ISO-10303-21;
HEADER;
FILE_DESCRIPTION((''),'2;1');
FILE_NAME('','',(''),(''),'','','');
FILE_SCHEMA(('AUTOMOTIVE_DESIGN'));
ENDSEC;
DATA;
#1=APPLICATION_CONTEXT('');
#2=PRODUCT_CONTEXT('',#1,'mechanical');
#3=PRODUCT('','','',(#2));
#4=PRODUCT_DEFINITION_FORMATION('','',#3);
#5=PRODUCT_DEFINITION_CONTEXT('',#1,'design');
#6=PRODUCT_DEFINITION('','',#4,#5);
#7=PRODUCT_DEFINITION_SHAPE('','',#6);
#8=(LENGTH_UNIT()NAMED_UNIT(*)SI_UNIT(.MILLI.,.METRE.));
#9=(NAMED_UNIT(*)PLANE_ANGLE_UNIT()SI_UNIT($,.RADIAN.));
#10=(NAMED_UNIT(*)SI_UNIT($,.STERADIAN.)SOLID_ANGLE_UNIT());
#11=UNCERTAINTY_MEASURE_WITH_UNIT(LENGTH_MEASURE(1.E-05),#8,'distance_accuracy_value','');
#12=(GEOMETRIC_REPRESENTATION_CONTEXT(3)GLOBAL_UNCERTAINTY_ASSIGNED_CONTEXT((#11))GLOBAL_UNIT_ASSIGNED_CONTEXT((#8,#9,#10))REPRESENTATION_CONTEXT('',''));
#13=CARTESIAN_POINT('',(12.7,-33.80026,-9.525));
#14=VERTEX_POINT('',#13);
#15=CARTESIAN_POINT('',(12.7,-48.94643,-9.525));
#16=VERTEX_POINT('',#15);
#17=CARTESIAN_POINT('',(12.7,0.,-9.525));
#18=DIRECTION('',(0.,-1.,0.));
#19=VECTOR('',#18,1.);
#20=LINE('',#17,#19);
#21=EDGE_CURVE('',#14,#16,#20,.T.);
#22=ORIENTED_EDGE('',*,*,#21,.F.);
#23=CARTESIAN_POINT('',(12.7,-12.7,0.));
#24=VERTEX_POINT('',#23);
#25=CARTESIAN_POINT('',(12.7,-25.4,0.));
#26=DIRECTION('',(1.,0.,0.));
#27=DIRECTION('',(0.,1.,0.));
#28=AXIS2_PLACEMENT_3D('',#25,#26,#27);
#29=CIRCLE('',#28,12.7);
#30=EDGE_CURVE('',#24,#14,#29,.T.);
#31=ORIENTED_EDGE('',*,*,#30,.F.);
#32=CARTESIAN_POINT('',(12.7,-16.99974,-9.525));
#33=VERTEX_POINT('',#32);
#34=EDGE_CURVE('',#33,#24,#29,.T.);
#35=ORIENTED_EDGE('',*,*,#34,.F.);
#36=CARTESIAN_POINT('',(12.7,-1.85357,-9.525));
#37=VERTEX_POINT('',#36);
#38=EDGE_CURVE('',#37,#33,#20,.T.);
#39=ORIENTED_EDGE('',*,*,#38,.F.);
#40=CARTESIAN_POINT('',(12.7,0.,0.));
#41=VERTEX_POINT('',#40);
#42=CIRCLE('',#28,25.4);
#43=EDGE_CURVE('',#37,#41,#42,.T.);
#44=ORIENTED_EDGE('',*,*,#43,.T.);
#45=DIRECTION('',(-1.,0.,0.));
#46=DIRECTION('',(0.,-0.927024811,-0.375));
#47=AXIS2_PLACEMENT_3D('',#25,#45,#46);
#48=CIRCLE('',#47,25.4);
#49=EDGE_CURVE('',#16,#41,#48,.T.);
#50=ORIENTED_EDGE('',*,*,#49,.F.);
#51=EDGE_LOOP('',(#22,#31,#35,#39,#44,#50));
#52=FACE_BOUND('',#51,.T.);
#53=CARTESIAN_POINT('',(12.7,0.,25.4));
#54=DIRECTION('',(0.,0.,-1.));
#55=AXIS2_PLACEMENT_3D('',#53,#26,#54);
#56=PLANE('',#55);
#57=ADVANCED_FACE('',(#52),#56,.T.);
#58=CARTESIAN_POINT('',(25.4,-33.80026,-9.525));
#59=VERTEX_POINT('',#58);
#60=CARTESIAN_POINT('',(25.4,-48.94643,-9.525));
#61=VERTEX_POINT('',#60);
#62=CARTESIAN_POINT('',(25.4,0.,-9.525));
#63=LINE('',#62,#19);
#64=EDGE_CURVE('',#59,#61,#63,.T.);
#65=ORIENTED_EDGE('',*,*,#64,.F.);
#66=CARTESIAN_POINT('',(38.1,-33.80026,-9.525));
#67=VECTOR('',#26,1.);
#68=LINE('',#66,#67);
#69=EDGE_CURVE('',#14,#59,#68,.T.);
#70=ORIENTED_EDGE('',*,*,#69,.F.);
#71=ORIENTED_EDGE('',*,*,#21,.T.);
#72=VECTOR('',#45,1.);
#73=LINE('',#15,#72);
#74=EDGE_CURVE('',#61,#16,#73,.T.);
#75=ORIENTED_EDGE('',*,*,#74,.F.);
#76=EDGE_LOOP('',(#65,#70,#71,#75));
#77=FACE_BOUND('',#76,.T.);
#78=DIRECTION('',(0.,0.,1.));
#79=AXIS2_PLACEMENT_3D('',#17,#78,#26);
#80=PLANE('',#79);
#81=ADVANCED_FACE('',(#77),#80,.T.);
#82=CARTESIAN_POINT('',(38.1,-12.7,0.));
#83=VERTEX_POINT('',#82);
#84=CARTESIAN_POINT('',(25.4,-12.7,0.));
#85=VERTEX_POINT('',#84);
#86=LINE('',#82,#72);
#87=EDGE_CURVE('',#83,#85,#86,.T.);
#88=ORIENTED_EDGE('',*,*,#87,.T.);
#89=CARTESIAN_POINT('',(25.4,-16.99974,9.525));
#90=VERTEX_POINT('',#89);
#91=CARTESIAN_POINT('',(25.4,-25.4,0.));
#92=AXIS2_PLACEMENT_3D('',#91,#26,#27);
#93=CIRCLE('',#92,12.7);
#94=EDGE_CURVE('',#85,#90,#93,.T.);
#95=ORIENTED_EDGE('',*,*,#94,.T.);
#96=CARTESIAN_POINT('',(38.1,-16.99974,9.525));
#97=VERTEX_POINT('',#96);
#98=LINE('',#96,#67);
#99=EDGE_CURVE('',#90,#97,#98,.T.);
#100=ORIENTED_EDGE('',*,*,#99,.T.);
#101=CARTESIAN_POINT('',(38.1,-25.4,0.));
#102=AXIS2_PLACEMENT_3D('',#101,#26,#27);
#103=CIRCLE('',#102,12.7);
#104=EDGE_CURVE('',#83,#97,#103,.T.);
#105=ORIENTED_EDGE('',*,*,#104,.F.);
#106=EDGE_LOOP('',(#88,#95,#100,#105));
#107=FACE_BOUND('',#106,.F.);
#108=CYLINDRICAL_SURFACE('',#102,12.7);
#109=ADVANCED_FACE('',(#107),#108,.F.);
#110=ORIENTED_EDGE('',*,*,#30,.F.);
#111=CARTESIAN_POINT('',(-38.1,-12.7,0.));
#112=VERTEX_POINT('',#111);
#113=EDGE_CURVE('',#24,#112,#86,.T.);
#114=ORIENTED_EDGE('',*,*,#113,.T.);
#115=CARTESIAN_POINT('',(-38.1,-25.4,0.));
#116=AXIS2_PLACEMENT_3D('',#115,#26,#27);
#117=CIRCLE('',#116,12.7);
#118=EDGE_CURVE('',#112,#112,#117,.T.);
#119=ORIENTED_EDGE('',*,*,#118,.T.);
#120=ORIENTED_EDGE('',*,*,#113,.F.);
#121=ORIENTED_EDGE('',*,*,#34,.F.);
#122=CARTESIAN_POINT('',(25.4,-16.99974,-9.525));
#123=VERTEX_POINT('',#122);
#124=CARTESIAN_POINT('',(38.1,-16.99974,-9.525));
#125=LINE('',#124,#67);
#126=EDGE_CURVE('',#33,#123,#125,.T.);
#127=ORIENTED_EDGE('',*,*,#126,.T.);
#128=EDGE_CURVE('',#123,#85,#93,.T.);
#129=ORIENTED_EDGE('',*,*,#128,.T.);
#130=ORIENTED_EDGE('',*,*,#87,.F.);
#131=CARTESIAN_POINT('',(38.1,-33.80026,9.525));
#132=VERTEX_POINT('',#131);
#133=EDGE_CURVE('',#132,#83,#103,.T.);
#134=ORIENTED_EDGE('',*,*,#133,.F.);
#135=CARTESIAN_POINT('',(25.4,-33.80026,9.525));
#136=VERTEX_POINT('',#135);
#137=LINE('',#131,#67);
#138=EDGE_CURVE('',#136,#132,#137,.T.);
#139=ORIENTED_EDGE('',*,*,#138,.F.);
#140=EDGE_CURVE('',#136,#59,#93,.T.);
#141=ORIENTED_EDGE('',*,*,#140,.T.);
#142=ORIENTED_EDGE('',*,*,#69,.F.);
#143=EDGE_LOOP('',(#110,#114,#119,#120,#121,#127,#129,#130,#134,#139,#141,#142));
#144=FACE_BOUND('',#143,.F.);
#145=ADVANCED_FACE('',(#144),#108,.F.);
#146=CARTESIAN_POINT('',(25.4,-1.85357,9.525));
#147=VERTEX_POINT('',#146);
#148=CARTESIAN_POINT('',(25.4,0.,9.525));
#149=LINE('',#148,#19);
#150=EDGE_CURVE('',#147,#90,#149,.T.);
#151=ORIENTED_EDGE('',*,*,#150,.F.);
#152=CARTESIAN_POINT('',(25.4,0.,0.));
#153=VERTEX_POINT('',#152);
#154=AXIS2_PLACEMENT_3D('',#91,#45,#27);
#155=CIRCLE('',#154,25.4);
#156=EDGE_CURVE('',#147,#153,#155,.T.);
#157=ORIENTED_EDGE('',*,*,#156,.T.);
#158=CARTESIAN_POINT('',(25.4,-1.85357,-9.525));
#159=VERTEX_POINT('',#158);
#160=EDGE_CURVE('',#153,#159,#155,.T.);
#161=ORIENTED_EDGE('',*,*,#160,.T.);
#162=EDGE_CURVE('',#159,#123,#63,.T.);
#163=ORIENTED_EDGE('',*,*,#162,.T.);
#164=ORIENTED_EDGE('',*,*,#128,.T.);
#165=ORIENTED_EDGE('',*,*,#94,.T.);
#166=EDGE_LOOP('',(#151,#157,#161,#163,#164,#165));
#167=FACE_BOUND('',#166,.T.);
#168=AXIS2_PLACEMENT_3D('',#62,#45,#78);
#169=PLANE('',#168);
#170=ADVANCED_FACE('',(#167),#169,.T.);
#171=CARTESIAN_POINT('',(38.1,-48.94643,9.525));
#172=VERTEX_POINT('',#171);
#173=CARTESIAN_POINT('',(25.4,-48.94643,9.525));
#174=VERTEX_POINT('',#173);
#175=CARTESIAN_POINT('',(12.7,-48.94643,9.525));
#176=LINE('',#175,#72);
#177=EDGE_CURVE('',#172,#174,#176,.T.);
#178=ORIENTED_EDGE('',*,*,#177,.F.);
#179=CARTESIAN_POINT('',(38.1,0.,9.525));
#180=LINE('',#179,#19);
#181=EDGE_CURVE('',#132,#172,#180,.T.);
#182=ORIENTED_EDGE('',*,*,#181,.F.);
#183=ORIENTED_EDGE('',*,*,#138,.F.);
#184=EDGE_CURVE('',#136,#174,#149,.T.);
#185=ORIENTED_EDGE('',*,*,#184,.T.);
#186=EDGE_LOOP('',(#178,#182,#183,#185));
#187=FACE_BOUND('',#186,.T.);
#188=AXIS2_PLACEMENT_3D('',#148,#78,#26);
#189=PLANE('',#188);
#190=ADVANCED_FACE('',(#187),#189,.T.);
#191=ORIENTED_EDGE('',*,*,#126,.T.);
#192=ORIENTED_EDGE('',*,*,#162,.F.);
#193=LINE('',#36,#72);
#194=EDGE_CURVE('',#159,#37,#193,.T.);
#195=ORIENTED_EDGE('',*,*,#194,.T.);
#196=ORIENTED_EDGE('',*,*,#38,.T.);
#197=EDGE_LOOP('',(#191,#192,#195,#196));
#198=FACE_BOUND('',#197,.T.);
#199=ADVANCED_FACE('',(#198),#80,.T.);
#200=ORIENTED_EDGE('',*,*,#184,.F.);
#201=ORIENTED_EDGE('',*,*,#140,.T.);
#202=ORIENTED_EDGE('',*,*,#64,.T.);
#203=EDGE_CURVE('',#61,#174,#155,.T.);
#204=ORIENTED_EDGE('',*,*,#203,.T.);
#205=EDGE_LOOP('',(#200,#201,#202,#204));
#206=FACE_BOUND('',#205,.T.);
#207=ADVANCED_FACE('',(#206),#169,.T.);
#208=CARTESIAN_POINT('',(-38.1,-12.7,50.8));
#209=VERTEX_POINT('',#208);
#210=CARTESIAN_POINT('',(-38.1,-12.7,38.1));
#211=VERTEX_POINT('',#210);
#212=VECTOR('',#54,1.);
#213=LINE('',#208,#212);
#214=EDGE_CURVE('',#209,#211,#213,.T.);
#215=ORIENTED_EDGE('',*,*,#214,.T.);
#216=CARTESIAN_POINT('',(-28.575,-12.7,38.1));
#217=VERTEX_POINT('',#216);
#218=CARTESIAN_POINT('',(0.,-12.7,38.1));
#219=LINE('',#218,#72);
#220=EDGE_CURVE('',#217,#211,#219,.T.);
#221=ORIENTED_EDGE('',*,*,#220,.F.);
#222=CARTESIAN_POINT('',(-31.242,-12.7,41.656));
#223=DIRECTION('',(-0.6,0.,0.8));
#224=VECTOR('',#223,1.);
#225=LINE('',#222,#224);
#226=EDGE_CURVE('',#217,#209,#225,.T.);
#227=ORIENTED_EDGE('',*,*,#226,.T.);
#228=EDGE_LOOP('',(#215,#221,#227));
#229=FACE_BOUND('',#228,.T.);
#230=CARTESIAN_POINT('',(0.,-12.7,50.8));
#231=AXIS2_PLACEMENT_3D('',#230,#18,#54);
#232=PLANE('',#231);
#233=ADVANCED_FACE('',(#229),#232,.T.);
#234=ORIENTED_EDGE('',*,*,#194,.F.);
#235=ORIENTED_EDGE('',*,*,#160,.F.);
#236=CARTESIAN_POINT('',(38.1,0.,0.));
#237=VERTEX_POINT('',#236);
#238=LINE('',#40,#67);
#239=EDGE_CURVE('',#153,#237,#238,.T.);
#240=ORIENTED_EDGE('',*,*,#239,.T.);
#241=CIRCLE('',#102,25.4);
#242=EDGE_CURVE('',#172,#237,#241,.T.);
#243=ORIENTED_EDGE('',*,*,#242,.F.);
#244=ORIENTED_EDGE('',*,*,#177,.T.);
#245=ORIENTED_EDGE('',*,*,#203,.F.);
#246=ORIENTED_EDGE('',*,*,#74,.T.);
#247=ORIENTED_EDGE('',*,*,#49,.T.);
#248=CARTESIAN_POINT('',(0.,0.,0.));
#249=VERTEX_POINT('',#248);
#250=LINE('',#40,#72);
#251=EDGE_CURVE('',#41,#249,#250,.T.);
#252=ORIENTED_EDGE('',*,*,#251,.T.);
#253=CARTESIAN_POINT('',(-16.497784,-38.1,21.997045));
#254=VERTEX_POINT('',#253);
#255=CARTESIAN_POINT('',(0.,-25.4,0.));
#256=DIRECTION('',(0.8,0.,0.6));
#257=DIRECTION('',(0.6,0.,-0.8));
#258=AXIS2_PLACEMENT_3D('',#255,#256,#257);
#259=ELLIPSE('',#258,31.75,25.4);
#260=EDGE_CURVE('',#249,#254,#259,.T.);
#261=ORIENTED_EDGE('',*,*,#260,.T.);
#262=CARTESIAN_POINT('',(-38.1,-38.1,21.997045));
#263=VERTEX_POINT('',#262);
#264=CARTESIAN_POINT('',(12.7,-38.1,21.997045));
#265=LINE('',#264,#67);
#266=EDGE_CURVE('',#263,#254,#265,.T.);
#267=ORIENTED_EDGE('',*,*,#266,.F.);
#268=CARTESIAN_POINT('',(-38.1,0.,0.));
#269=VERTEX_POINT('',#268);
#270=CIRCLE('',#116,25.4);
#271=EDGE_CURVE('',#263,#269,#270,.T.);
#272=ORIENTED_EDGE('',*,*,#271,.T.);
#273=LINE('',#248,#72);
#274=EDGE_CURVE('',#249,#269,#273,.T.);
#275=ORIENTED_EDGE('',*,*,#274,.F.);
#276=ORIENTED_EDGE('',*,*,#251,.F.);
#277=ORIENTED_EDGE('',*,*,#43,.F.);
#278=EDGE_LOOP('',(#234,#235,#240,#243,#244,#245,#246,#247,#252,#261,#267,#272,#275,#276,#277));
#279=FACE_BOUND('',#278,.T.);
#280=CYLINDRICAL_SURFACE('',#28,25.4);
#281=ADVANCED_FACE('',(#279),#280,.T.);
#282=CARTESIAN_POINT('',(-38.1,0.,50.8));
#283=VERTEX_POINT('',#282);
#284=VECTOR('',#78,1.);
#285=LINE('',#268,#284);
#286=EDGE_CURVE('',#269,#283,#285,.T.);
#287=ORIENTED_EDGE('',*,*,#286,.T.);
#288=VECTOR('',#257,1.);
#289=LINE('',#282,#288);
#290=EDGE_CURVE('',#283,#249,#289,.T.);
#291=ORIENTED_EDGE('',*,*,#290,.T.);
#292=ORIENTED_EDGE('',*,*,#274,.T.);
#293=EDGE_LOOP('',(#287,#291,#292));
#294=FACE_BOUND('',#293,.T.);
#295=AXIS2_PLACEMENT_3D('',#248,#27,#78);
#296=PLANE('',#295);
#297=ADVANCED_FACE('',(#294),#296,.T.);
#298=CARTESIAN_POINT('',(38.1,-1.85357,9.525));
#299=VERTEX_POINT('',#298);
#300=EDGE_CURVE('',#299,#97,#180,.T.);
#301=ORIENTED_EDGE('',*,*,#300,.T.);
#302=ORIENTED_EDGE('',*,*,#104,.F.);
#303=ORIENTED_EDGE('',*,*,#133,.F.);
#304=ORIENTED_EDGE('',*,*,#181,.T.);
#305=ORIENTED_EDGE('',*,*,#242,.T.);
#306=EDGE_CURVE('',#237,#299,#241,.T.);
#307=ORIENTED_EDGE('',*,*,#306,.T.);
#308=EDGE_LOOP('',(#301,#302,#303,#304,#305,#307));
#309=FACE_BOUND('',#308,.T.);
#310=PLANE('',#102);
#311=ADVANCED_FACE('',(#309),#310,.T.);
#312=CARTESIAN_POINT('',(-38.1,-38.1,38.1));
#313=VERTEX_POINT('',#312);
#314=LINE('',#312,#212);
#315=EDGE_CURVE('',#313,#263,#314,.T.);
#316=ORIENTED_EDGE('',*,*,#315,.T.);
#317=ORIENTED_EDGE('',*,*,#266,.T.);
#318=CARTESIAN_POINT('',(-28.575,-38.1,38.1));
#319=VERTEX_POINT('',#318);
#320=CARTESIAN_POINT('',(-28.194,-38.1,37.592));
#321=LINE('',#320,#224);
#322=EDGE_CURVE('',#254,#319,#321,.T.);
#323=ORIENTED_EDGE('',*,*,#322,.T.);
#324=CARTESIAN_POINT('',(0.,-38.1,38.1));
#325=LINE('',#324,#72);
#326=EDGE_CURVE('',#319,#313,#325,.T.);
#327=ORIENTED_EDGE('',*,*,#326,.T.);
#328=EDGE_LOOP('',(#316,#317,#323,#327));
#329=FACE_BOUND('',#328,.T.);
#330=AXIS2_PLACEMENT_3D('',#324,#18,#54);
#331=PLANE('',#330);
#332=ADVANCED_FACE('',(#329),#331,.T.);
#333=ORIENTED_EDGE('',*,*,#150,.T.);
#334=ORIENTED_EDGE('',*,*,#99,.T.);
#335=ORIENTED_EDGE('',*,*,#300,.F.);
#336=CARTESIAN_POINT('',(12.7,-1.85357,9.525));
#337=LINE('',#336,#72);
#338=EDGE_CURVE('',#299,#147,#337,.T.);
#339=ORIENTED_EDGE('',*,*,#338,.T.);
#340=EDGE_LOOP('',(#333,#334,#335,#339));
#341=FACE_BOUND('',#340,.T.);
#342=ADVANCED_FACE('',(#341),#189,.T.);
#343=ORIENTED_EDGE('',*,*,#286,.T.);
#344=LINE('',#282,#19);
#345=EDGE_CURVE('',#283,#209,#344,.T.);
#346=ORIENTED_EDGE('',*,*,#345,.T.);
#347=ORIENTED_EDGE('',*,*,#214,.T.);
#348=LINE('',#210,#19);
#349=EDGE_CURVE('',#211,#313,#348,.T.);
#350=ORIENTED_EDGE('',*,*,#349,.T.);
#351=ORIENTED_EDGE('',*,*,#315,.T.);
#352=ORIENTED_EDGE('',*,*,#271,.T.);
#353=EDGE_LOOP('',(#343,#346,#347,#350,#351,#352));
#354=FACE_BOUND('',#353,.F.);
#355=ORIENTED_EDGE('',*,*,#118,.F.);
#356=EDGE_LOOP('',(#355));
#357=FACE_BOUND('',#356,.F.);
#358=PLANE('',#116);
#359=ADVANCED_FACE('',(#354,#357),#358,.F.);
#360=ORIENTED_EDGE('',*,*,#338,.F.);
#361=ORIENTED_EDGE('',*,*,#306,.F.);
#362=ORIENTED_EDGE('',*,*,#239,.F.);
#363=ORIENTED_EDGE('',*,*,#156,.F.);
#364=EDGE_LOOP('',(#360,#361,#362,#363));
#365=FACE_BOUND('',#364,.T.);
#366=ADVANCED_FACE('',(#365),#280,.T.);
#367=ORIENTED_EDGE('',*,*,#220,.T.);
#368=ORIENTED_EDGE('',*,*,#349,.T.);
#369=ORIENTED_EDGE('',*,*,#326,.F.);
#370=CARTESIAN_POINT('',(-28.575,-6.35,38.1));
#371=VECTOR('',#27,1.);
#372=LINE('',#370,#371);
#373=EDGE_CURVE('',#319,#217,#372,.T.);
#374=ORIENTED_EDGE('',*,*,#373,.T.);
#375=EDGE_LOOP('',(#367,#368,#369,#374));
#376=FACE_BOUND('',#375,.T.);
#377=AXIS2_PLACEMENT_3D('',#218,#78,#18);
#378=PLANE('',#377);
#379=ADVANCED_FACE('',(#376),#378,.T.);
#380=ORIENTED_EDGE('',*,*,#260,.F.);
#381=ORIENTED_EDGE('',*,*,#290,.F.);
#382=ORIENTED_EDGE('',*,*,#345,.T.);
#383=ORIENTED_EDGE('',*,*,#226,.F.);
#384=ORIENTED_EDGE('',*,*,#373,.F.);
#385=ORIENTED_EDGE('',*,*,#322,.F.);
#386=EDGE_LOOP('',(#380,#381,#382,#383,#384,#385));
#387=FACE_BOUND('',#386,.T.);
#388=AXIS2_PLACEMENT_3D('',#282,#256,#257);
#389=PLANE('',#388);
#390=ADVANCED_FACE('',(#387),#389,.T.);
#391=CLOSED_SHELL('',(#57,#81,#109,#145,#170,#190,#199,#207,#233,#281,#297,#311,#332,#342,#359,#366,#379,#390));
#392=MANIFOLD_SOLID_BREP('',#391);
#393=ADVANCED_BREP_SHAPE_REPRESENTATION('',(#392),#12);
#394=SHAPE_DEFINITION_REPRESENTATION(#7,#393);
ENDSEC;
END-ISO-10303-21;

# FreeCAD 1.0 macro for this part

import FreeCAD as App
import Part
import Sketcher
Q = App.Units.Quantity


def add_polygon(sketch, points):
    """Adds a closed chain of lines whose ends are joined by coincident constraints."""
    first, n = sketch.GeometryCount, len(points)
    for a, b in zip(points, points[1:] + points[:1]):
        sketch.addGeometry(Part.LineSegment(App.Vector(*a, 0), App.Vector(*b, 0)), False)
    for i in range(n):
        sketch.addConstraint(Sketcher.Constraint("Coincident", first + i, 2, first + (i + 1) % n, 1))

doc = App.newDocument("Part")
params = doc.addObject("Spreadsheet::Sheet", "Params")
for row, (alias, value) in enumerate([
    ("sketch1_width", "1 in"),
    ("sketch1_height", "2 in"),
    ("pad1_length", "1.5 in"),
    ("sketch2_height", "2 in"),
    ("sketch2_width", "1.5 in"),
    ("sketch3_diameter", "2 in"),
    ("pad2_length", "2 in"),
    ("sketch4_diameter", "2 in"),
    ("pad3_length", "1 in"),
    ("sketch5_diameter", "1 in"),
    ("sketch6_width", "1 in"),
    ("sketch6_height", "0.75 in"),
    ("sketch6_height2", "0.625 in"),
], start=1):
    params.set(f"A{row}", alias)
    params.set(f"B{row}", "=" + value)
    params.setAlias(f"B{row}", alias)

body = doc.addObject("PartDesign::Body", "Body")

# Sketch on YZ plane
sketch1 = body.newObject("Sketcher::SketchObject", "Sketch")
sketch1.AttachmentSupport = (doc.getObject("YZ_Plane"), [""])
sketch1.MapMode = "FlatFace"
add_polygon(sketch1, [(-38.1, 0), (0, 0), (0, 50.8), (-12.7, 50.8), (-12.7, 38.1), (-38.1, 38.1)])  # lines 0-5
sketch1.addConstraint([
    Sketcher.Constraint("Horizontal", 0),
    Sketcher.Constraint("Vertical", 1),
    Sketcher.Constraint("Horizontal", 2),
    Sketcher.Constraint("Vertical", 3),
    Sketcher.Constraint("Horizontal", 4),
    Sketcher.Constraint("Vertical", 5),
    Sketcher.Constraint("Coincident", 0, 2, -1, 1),
    Sketcher.Constraint("Equal", 2, 3),
    Sketcher.Constraint("Equal", 0, 5),
    Sketcher.Constraint("DistanceX", 4, 2, 4, 1, Q("1 in")),
    Sketcher.Constraint("DistanceY", 1, 1, 1, 2, Q("2 in")),
])
sketch1.setExpression("Constraints[15]", "Params.sketch1_width")
sketch1.setExpression("Constraints[16]", "Params.sketch1_height")
pad1 = body.newObject("PartDesign::Pad", "Pad")
pad1.Profile = sketch1
pad1.setExpression("Length", "Params.pad1_length")
pad1.Reversed = True

# Sketch on XZ plane
sketch2 = body.newObject("Sketcher::SketchObject", "Sketch001")
sketch2.AttachmentSupport = (doc.getObject("XZ_Plane"), [""])
sketch2.MapMode = "FlatFace"
add_polygon(sketch2, [(-38.1, 50.8), (0, 0), (0, 50.8)])  # lines 0-2
sketch2.addConstraint([
    Sketcher.Constraint("Vertical", 1),
    Sketcher.Constraint("Horizontal", 2),
    Sketcher.Constraint("Coincident", 0, 2, -1, 1),
    Sketcher.Constraint("DistanceY", 1, 1, 1, 2, Q("2 in")),
    Sketcher.Constraint("DistanceX", 2, 2, 2, 1, Q("1.5 in")),
])
sketch2.setExpression("Constraints[6]", "Params.sketch2_height")
sketch2.setExpression("Constraints[7]", "Params.sketch2_width")
pocket1 = body.newObject("PartDesign::Pocket", "Pocket")
pocket1.Profile = sketch2
pocket1.Type = "ThroughAll"
pocket1.Reversed = True

# Sketch on YZ plane
sketch3 = body.newObject("Sketcher::SketchObject", "Sketch002")
sketch3.AttachmentSupport = (doc.getObject("YZ_Plane"), [""])
sketch3.MapMode = "FlatFace"
sketch3.AttachmentOffset = App.Placement(App.Vector(0, 0, 0.5 * 25.4), App.Rotation())
sketch3.addGeometry(Part.Circle(App.Vector(-25.4, 0, 0), App.Vector(0, 0, 1), 25.4), False)
sketch3.addConstraint([
    Sketcher.Constraint("PointOnObject", 0, 3, -1),
    Sketcher.Constraint("Diameter", 0, Q("2 in")),
    Sketcher.Constraint("DistanceX", 0, 3, -1, 1, Q("1 in")),
])
sketch3.setExpression("Constraints[1]", "Params.sketch3_diameter")
pad2 = body.newObject("PartDesign::Pad", "Pad001")
pad2.Profile = sketch3
pad2.setExpression("Length", "Params.pad2_length")
pad2.Reversed = True

# Sketch on YZ plane
sketch4 = body.newObject("Sketcher::SketchObject", "Sketch003")
sketch4.AttachmentSupport = (doc.getObject("YZ_Plane"), [""])
sketch4.MapMode = "FlatFace"
sketch4.AttachmentOffset = App.Placement(App.Vector(0, 0, 0.5 * 25.4), App.Rotation())
sketch4.addGeometry(Part.Circle(App.Vector(-25.4, 0, 0), App.Vector(0, 0, 1), 25.4), False)
sketch4.addConstraint([
    Sketcher.Constraint("PointOnObject", 0, 3, -1),
    Sketcher.Constraint("Diameter", 0, Q("2 in")),
    Sketcher.Constraint("DistanceX", 0, 3, -1, 1, Q("1 in")),
])
sketch4.setExpression("Constraints[1]", "Params.sketch4_diameter")
pad3 = body.newObject("PartDesign::Pad", "Pad002")
pad3.Profile = sketch4
pad3.setExpression("Length", "Params.pad3_length")

# Sketch on YZ plane
sketch5 = body.newObject("Sketcher::SketchObject", "Sketch004")
sketch5.AttachmentSupport = (doc.getObject("YZ_Plane"), [""])
sketch5.MapMode = "FlatFace"
sketch5.AttachmentOffset = App.Placement(App.Vector(0, 0, 1.5 * 25.4), App.Rotation())
sketch5.addGeometry(Part.Circle(App.Vector(-25.4, 0, 0), App.Vector(0, 0, 1), 12.7), False)
sketch5.addConstraint([
    Sketcher.Constraint("PointOnObject", 0, 3, -1),
    Sketcher.Constraint("Diameter", 0, Q("1 in")),
    Sketcher.Constraint("DistanceX", 0, 3, -1, 1, Q("1 in")),
])
sketch5.setExpression("Constraints[1]", "Params.sketch5_diameter")
pocket2 = body.newObject("PartDesign::Pocket", "Pocket001")
pocket2.Profile = sketch5
pocket2.Type = "ThroughAll"

# Sketch on XZ plane
sketch6 = body.newObject("Sketcher::SketchObject", "Sketch005")
sketch6.AttachmentSupport = (doc.getObject("XZ_Plane"), [""])
sketch6.MapMode = "FlatFace"
add_polygon(sketch6, [(38.1, 9.525), (38.1, 25.4), (12.7, 25.4), (12.7, -9.525), (25.4, -9.525), (25.4, 9.525)])  # lines 0-5
sketch6.addConstraint([
    Sketcher.Constraint("Vertical", 0),
    Sketcher.Constraint("Horizontal", 1),
    Sketcher.Constraint("Vertical", 2),
    Sketcher.Constraint("Horizontal", 3),
    Sketcher.Constraint("Vertical", 4),
    Sketcher.Constraint("Horizontal", 5),
    Sketcher.Constraint("Equal", 3, 5),
    Sketcher.Constraint("DistanceX", 1, 2, 1, 1, Q("1 in")),
    Sketcher.Constraint("DistanceY", -1, 1, 0, 2, Q("1 in")),
    Sketcher.Constraint("DistanceX", -1, 1, 3, 2, Q("1 in")),
    Sketcher.Constraint("DistanceY", 4, 1, 4, 2, Q("0.75 in")),
    Sketcher.Constraint("DistanceY", 0, 1, 0, 2, Q("0.625 in")),
])
sketch6.setExpression("Constraints[13]", "Params.sketch6_width")
sketch6.setExpression("Constraints[16]", "Params.sketch6_height")
sketch6.setExpression("Constraints[17]", "Params.sketch6_height2")
pocket3 = body.newObject("PartDesign::Pocket", "Pocket002")
pocket3.Profile = sketch6
pocket3.Type = "ThroughAll"
pocket3.Reversed = True

doc.recompute()
